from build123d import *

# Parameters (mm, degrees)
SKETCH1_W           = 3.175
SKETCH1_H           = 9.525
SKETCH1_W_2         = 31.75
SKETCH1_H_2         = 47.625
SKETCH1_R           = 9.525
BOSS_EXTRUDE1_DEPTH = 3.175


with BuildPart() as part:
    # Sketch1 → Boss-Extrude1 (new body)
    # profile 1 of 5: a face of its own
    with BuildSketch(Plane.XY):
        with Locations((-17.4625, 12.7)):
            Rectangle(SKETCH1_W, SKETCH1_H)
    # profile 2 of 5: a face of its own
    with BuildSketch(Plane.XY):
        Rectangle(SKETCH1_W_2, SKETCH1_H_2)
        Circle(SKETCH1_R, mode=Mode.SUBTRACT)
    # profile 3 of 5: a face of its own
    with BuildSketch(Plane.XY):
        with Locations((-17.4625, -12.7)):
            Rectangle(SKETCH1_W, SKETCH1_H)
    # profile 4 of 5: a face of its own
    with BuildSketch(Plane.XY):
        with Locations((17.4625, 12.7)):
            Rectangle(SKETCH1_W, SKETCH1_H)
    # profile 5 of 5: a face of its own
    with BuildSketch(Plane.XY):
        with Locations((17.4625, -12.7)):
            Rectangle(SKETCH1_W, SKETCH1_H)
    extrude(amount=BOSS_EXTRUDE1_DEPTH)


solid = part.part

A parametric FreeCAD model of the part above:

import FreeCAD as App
import Part
import Sketcher

V = App.Vector
Q = App.Units.Quantity


def add_polygon(sketch, points):
    """Adds a closed chain of lines whose ends are joined by coincident constraints."""
    first, n = sketch.GeometryCount, len(points)
    for a, b in zip(points, points[1:] + points[:1]):
        sketch.addGeometry(Part.LineSegment(App.Vector(*a, 0), App.Vector(*b, 0)), False)
    for i in range(n):
        sketch.addConstraint(Sketcher.Constraint("Coincident", first + i, 2, first + (i + 1) % n, 1))

doc = App.newDocument("Part")
body = doc.addObject("PartDesign::Body", "Body")

sketch1 = body.newObject("Sketcher::SketchObject", "Sketch")
sketch1.AttachmentSupport = (doc.getObject("XY_Plane"), [""])
sketch1.MapMode = "FlatFace"
add_polygon(sketch1, [(-19.05, 17.4625), (-19.05, 7.9375), (-15.875, 7.9375), (-15.875, -7.9375), (-19.05, -7.9375), (-19.05, -17.4625), (-15.875, -17.4625), (-15.875, -23.8125), (15.875, -23.8125), (15.875, -17.4625), (19.05, -17.4625), (19.05, -7.9375), (15.875, -7.9375), (15.875, 7.9375), (19.05, 7.9375), (19.05, 17.4625), (15.875, 17.4625), (15.875, 23.8125), (-15.875, 23.8125), (-15.875, 17.4625)])
sketch1.addGeometry(Part.Circle(V(0, 0, 0), V(0, 0, 1), 9.525), False)
sketch1.addConstraint(Sketcher.Constraint("Vertical", 0))
sketch1.addConstraint(Sketcher.Constraint("Horizontal", 1))
sketch1.addConstraint(Sketcher.Constraint("Vertical", 2))
sketch1.addConstraint(Sketcher.Constraint("Horizontal", 3))
sketch1.addConstraint(Sketcher.Constraint("Vertical", 4))
sketch1.addConstraint(Sketcher.Constraint("Horizontal", 5))
sketch1.addConstraint(Sketcher.Constraint("Vertical", 6))
sketch1.addConstraint(Sketcher.Constraint("Horizontal", 7))
sketch1.addConstraint(Sketcher.Constraint("Vertical", 8))
sketch1.addConstraint(Sketcher.Constraint("Horizontal", 9))
sketch1.addConstraint(Sketcher.Constraint("Vertical", 10))
sketch1.addConstraint(Sketcher.Constraint("Horizontal", 11))
sketch1.addConstraint(Sketcher.Constraint("Vertical", 12))
sketch1.addConstraint(Sketcher.Constraint("Horizontal", 13))
sketch1.addConstraint(Sketcher.Constraint("Vertical", 14))
sketch1.addConstraint(Sketcher.Constraint("Horizontal", 15))
sketch1.addConstraint(Sketcher.Constraint("Vertical", 16))
sketch1.addConstraint(Sketcher.Constraint("Horizontal", 17))
sketch1.addConstraint(Sketcher.Constraint("Vertical", 18))
sketch1.addConstraint(Sketcher.Constraint("Horizontal", 19))
sketch1.addConstraint(Sketcher.Constraint("Coincident", 20, 3, -1, 1))
sketch1.addConstraint(Sketcher.Constraint("Symmetric", 0, 2, 10, 2, -1, 1))
sketch1.addConstraint(Sketcher.Constraint("Symmetric", 2, 2, 12, 2, -1, 1))
sketch1.addConstraint(Sketcher.Constraint("Symmetric", 4, 2, 14, 2, -1, 1))
sketch1.addConstraint(Sketcher.Constraint("Symmetric", 6, 2, 16, 2, -1, 1))
sketch1.addConstraint(Sketcher.Constraint("Symmetric", 8, 2, 18, 2, -1, 1))
sketch1.addConstraint(Sketcher.Constraint("Symmetric", 5, 2, 8, 2, -2))
sketch1.addConstraint(Sketcher.Constraint("Symmetric", 3, 2, 10, 2, -2))
sketch1.addConstraint(Sketcher.Constraint("Vertical", 2, 2, 5, 2))
sketch1.addConstraint(Sketcher.Constraint("Diameter", 20, Q("0.75 in")))
sketch1.addConstraint(Sketcher.Constraint("DistanceY", 4, 2, 0, 2, Q("1 in")))
sketch1.addConstraint(Sketcher.Constraint("DistanceX", 7, 1, 7, 2, Q("1.25 in")))
sketch1.addConstraint(Sketcher.Constraint("DistanceY", 6, 2, 6, 1, Q("0.25 in")))
sketch1.addConstraint(Sketcher.Constraint("DistanceX", 1, 1, 1, 2, Q("0.125 in")))
sketch1.addConstraint(Sketcher.Constraint("DistanceY", 0, 2, 0, 1, Q("0.375 in")))
pad1 = body.newObject("PartDesign::Pad", "Pad")
pad1.Profile = sketch1
pad1.Length = Q("0.125 in")

doc.recompute()
